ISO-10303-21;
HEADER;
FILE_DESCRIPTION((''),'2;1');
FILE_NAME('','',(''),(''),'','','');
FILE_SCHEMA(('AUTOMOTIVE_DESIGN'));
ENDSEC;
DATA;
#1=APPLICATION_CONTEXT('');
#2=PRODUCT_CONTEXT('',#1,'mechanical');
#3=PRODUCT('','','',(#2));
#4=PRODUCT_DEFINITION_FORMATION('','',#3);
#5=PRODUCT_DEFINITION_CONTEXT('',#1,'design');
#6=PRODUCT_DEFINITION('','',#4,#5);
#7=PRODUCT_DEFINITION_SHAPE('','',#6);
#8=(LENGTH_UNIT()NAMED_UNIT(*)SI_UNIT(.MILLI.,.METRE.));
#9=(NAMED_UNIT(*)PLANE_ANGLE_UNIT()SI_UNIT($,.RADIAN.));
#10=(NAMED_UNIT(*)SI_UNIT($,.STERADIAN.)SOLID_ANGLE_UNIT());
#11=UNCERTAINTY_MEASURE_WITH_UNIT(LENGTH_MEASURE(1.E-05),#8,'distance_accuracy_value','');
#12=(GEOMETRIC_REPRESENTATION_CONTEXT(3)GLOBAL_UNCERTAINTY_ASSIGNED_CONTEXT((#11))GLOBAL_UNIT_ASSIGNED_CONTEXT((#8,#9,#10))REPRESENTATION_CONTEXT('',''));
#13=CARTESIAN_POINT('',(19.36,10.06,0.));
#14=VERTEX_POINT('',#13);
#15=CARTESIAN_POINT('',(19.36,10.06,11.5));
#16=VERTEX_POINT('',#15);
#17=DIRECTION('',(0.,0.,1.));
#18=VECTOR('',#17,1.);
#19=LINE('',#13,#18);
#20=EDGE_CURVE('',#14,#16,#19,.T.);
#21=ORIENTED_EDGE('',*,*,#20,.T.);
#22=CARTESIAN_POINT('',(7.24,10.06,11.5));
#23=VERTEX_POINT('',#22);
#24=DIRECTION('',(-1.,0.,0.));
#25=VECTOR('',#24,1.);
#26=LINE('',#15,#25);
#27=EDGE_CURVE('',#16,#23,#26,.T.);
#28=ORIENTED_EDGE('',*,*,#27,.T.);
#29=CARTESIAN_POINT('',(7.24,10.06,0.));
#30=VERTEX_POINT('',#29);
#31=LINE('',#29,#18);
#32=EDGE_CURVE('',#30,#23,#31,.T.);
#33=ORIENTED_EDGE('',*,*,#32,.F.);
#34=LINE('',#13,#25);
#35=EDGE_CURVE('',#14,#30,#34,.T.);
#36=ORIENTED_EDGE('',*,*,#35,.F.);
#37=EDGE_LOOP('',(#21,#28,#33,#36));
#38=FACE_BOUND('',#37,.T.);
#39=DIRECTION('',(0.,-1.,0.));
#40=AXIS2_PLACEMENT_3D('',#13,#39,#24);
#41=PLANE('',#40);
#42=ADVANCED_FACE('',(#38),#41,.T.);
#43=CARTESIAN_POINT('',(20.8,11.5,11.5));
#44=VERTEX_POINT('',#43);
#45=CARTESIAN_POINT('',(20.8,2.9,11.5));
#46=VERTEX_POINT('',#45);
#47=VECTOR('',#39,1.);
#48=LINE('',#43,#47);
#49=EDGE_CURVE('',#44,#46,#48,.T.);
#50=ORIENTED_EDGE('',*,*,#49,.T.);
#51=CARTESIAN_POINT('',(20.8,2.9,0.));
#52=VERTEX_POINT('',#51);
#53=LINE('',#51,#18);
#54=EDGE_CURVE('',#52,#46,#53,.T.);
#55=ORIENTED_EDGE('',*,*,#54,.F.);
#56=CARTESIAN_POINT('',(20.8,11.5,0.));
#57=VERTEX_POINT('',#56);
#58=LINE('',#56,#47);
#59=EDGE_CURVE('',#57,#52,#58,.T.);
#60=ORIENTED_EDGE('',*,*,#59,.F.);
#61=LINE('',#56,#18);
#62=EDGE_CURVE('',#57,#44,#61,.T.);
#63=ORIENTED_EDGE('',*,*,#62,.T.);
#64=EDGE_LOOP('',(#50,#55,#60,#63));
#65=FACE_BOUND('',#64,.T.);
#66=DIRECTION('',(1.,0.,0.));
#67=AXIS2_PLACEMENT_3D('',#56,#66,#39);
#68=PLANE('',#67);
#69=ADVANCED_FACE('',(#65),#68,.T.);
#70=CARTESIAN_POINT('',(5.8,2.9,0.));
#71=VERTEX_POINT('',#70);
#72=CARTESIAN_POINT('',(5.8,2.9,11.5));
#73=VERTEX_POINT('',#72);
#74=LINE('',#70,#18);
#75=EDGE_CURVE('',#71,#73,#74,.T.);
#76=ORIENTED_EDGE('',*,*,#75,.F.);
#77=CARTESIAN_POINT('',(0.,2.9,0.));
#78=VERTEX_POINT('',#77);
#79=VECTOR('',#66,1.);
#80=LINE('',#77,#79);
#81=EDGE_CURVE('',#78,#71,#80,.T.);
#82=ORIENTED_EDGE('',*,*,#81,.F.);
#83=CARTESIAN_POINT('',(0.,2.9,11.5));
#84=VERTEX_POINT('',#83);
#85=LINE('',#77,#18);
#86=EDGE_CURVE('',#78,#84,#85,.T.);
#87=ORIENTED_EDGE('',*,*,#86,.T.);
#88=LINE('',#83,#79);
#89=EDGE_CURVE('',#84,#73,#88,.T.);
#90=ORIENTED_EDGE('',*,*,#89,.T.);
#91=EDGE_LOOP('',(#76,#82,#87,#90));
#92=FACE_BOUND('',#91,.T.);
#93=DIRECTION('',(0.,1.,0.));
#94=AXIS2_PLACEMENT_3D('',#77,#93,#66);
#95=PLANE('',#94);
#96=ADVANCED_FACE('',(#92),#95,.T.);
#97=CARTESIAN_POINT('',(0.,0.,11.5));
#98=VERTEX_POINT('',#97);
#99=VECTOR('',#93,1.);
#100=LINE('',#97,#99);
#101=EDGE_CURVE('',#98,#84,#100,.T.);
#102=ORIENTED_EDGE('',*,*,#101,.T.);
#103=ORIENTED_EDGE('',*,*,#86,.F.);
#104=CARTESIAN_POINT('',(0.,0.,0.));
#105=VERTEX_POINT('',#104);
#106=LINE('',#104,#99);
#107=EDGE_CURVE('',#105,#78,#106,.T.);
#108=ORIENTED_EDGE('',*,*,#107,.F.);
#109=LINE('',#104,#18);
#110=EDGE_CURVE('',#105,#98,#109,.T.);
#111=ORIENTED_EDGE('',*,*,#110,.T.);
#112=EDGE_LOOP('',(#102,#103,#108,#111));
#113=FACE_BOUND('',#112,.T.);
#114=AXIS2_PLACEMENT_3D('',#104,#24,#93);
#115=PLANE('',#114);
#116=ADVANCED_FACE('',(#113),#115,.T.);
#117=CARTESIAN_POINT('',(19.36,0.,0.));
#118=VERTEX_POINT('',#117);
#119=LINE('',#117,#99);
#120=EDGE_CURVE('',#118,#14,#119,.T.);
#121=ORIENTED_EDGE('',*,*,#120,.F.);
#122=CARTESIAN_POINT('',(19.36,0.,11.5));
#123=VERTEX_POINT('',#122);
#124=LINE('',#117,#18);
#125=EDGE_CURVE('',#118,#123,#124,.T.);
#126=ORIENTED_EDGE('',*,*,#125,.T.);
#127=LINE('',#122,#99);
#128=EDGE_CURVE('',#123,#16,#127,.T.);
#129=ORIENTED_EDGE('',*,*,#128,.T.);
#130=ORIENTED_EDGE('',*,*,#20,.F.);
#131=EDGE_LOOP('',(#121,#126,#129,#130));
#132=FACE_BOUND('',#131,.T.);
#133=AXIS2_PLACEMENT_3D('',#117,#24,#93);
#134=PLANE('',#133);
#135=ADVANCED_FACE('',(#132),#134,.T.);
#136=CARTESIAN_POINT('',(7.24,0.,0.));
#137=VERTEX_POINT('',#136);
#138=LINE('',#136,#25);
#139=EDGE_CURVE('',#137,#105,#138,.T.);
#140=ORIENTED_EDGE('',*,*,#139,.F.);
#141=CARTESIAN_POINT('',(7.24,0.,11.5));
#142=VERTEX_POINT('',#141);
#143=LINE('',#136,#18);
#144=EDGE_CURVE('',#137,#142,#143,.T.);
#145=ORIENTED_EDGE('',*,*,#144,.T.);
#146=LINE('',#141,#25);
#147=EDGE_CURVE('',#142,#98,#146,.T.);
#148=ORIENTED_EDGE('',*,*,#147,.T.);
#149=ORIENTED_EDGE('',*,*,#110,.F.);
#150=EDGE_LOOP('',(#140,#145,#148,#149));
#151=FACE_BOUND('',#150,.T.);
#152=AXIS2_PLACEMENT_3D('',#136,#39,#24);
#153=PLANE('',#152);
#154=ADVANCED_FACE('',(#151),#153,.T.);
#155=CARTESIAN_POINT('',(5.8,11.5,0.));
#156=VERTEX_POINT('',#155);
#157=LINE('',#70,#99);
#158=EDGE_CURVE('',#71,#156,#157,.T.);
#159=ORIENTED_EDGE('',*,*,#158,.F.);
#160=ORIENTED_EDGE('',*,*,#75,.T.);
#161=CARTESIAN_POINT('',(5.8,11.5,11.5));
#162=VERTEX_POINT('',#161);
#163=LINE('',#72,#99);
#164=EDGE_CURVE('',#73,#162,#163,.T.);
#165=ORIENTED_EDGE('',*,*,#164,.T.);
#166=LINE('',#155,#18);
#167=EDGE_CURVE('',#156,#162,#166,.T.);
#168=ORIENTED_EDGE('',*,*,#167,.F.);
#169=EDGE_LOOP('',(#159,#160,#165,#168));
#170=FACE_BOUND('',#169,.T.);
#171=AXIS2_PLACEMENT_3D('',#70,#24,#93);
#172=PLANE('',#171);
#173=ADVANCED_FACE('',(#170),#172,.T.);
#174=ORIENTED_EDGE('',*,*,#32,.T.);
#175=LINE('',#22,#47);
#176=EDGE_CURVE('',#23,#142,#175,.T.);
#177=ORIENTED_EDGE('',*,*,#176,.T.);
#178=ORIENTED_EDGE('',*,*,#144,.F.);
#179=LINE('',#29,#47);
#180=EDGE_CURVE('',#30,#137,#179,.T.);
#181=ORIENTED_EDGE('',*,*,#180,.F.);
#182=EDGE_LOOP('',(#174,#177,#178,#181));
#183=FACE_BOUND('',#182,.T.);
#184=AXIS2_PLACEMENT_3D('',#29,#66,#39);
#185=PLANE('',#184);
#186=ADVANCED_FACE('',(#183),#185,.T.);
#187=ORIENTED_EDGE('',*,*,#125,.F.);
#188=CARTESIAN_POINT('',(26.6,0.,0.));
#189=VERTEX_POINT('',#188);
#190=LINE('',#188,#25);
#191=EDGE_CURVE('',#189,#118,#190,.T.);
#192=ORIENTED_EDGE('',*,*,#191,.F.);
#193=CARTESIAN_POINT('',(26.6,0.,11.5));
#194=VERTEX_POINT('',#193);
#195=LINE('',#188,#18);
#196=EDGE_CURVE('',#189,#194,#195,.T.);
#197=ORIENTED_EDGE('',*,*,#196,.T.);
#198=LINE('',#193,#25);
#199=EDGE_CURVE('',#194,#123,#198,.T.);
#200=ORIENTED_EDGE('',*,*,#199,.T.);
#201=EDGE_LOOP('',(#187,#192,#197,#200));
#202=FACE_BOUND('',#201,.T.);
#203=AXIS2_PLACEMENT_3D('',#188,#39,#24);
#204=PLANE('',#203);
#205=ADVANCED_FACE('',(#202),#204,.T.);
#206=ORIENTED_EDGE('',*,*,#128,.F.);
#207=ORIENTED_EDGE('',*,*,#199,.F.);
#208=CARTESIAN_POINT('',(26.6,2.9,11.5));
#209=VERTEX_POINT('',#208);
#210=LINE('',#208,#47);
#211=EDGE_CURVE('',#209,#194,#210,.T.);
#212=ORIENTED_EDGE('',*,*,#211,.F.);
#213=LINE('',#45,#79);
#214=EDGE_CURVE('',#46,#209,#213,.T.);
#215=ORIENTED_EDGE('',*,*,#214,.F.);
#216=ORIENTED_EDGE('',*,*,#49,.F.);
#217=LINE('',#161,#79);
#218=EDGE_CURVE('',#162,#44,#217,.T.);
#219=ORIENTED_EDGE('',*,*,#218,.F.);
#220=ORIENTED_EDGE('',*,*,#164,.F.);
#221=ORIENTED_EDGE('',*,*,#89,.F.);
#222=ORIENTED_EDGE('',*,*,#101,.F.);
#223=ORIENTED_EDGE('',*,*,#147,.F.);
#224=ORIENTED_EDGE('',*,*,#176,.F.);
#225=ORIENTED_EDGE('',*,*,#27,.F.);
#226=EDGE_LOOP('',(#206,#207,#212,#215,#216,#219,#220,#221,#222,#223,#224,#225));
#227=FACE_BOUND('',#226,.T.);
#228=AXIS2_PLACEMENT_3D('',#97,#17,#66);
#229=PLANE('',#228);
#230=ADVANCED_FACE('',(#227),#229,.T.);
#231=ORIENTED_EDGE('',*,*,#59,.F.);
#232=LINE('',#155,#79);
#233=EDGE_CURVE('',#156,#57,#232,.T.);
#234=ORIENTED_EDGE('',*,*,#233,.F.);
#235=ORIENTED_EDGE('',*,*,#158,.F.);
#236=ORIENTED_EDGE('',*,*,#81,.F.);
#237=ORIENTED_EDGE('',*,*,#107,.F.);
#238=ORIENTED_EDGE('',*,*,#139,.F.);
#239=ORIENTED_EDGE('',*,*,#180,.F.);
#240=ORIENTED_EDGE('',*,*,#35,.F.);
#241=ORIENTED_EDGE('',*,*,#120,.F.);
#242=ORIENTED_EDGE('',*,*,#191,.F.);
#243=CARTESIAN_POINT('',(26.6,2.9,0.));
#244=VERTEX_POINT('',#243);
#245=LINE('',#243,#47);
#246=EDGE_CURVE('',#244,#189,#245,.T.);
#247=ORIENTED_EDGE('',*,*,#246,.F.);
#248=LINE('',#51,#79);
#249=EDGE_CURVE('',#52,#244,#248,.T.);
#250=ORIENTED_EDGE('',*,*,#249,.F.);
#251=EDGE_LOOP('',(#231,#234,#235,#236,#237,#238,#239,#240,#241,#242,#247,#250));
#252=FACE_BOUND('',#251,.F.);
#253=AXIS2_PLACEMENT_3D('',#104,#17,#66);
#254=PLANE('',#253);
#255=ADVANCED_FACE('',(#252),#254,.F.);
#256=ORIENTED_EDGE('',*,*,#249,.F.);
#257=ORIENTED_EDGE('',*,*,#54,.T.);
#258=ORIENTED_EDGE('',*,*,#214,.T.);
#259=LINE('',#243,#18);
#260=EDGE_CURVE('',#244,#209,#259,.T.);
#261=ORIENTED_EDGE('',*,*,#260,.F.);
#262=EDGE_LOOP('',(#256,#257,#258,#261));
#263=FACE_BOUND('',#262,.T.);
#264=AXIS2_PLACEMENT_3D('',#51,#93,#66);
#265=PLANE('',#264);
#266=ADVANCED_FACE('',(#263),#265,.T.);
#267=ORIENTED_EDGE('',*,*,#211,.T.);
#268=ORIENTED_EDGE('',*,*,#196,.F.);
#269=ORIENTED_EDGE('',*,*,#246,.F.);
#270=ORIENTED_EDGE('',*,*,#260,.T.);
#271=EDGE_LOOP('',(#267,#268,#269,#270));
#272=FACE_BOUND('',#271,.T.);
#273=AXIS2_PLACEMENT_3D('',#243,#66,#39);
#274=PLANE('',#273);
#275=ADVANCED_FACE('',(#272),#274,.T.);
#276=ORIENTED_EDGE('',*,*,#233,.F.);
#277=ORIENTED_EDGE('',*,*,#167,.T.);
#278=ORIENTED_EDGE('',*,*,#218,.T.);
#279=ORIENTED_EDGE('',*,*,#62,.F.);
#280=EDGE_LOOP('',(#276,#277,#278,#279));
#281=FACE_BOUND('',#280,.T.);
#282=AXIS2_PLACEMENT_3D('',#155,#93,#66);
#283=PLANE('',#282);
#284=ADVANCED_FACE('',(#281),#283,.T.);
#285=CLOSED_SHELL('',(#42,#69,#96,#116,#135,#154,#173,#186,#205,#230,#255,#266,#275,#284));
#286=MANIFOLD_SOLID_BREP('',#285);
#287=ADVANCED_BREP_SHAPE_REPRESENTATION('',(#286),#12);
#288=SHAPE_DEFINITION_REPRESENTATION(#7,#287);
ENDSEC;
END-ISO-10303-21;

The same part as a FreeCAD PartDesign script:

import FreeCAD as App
import Part
import Sketcher
from FreeCAD import Vector

doc = App.newDocument("Part")
params = doc.addObject("Spreadsheet::Sheet", "Params")
for row, (alias, value) in enumerate([
    ("sketch1_width", "15 mm"),
    ("sketch1_width2", "5.8 mm"),
    ("sketch1_height", "2.9 mm"),
    ("sketch1_height2", "8.6 mm"),
    ("sketch1_width3", "7.24 mm"),
    ("pad1_length", "11.5 mm"),
], start=1):
    params.set(f"A{row}", alias)
    params.set(f"B{row}", "=" + value)
    params.setAlias(f"B{row}", alias)

body = doc.addObject("PartDesign::Body", "Body")

sketch1 = body.newObject("Sketcher::SketchObject", "Sketch")
sketch1.AttachmentSupport = (doc.getObject("XY_Plane"), [""])
sketch1.MapMode = "FlatFace"
sketch1.addGeometry([
    Part.LineSegment(Vector(0, 2.9, 0), Vector(0, 0, 0)),
    Part.LineSegment(Vector(0, 0, 0), Vector(7.2, 0, 0)),
    Part.LineSegment(Vector(7.2, 0, 0), Vector(7.2, 10.1, 0)),
    Part.LineSegment(Vector(7.2, 10.1, 0), Vector(19.4, 10.1, 0)),
    Part.LineSegment(Vector(19.4, 10.1, 0), Vector(19.4, 0, 0)),
    Part.LineSegment(Vector(19.4, 0, 0), Vector(26.6, 0, 0)),
    Part.LineSegment(Vector(26.6, 0, 0), Vector(26.6, 2.9, 0)),
    Part.LineSegment(Vector(26.6, 2.9, 0), Vector(20.8, 2.9, 0)),
    Part.LineSegment(Vector(20.8, 2.9, 0), Vector(20.8, 11.5, 0)),
    Part.LineSegment(Vector(20.8, 11.5, 0), Vector(5.8, 11.5, 0)),
    Part.LineSegment(Vector(5.8, 11.5, 0), Vector(5.8, 2.9, 0)),
    Part.LineSegment(Vector(5.8, 2.9, 0), Vector(0, 2.9, 0)),
], False)
sketch1.addConstraint([
    Sketcher.Constraint("Coincident", 0, 2, 1, 1),
    Sketcher.Constraint("Coincident", 1, 2, 2, 1),
    Sketcher.Constraint("Coincident", 2, 2, 3, 1),
    Sketcher.Constraint("Coincident", 3, 2, 4, 1),
    Sketcher.Constraint("Coincident", 4, 2, 5, 1),
    Sketcher.Constraint("Coincident", 5, 2, 6, 1),
    Sketcher.Constraint("Coincident", 6, 2, 7, 1),
    Sketcher.Constraint("Coincident", 7, 2, 8, 1),
    Sketcher.Constraint("Coincident", 8, 2, 9, 1),
    Sketcher.Constraint("Coincident", 9, 2, 10, 1),
    Sketcher.Constraint("Coincident", 10, 2, 11, 1),
    Sketcher.Constraint("Coincident", 11, 2, 0, 1),
    Sketcher.Constraint("Vertical", 0),
    Sketcher.Constraint("Horizontal", 1),
    Sketcher.Constraint("Vertical", 2),
    Sketcher.Constraint("Horizontal", 3),
    Sketcher.Constraint("Vertical", 4),
    Sketcher.Constraint("Horizontal", 5),
    Sketcher.Constraint("Vertical", 6),
    Sketcher.Constraint("Horizontal", 7),
    Sketcher.Constraint("Vertical", 8),
    Sketcher.Constraint("Horizontal", 9),
    Sketcher.Constraint("Vertical", 10),
    Sketcher.Constraint("Horizontal", 11),
    Sketcher.Constraint("Coincident", 0, 2, -1, 1),
    Sketcher.Constraint("PointOnObject", 4, 2, -1),
    Sketcher.Constraint("Horizontal", 7, 2, 10, 2),
    Sketcher.Constraint("Equal", 1, 5),
    Sketcher.Constraint("Equal", 7, 11),
    Sketcher.Constraint("DistanceX", 9, 2, 9, 1, 15.0),
    Sketcher.Constraint("DistanceX", 7, 2, 7, 1, 5.8),
    Sketcher.Constraint("DistanceY", 0, 2, 0, 1, 2.9),
    Sketcher.Constraint("DistanceY", 8, 1, 8, 2, 8.6),
    Sketcher.Constraint("DistanceX", 1, 1, 1, 2, 7.24),
    Sketcher.Constraint("DistanceY", 2, 1, 2, 2, 10.06),
])
sketch1.setExpression("Constraints[29]", "Params.sketch1_width")
sketch1.setExpression("Constraints[30]", "Params.sketch1_width2")
sketch1.setExpression("Constraints[31]", "Params.sketch1_height")
sketch1.setExpression("Constraints[32]", "Params.sketch1_height2")
sketch1.setExpression("Constraints[33]", "Params.sketch1_width3")
pad1 = body.newObject("PartDesign::Pad", "Pad")
pad1.Profile = sketch1
pad1.setExpression("Length", "Params.pad1_length")

doc.recompute()
